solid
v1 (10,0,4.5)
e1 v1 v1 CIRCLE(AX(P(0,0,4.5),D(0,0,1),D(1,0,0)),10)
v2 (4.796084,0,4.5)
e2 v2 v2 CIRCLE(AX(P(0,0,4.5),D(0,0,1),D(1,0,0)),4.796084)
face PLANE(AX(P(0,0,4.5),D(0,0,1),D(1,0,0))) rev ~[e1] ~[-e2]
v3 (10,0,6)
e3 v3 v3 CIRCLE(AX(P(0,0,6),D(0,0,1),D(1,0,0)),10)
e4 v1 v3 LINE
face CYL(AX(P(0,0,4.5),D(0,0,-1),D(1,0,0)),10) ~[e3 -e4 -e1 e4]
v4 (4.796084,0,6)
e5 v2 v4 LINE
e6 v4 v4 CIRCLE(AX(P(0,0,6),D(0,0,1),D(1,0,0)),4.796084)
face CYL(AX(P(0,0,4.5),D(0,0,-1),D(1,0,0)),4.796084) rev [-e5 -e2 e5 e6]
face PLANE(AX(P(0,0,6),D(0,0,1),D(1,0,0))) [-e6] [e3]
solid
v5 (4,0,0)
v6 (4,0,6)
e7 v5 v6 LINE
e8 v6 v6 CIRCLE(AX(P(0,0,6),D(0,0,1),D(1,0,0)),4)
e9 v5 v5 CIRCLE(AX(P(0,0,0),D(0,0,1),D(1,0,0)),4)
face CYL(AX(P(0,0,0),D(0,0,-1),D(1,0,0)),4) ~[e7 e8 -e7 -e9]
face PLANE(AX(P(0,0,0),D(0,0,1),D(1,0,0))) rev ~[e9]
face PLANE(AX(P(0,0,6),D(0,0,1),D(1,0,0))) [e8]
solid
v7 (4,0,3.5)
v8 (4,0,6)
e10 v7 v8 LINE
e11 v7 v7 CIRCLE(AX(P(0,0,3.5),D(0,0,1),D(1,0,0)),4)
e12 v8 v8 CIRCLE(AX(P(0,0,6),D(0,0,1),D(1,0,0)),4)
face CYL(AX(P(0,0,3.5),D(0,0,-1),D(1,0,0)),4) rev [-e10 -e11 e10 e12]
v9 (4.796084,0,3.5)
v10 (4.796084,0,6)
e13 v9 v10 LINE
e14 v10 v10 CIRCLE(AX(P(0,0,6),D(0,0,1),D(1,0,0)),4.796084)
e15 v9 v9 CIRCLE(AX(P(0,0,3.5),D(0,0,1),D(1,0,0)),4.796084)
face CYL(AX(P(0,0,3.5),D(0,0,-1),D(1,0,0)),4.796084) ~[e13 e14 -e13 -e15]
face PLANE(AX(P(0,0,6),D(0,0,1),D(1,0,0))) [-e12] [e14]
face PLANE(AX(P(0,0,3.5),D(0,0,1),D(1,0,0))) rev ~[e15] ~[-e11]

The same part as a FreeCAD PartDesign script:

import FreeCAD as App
import Part
import Sketcher
from FreeCAD import Vector
Q = App.Units.Quantity

doc = App.newDocument("Part")
params = doc.addObject("Spreadsheet::Sheet", "Params")
for row, (alias, value) in enumerate([
    ("sketch1_diameter", "8 mm"),
    ("pad1_length", "6 mm"),
    ("sketch2_diameter", "20 mm"),
    ("pad2_length", "1.5 mm"),
    ("sketch3_diameter", "8 mm"),
    ("pad3_length", "2.5 mm"),
], start=1):
    params.set(f"A{row}", alias)
    params.set(f"B{row}", "=" + value)
    params.setAlias(f"B{row}", alias)

body = doc.addObject("PartDesign::Body", "Body")

# Sketch on XY plane
sketch1 = body.newObject("Sketcher::SketchObject", "Sketch")
sketch1.AttachmentSupport = (doc.getObject("XY_Plane"), [""])
sketch1.MapMode = "FlatFace"
sketch1.addGeometry(Part.Circle(Vector(0, 0, 0), Vector(0, 0, 1), 4), False)
sketch1.addConstraint([
    Sketcher.Constraint("Coincident", 0, 3, -1, 1),
    Sketcher.Constraint("Diameter", 0, Q("8 mm")),
])
sketch1.setExpression("Constraints[1]", "Params.sketch1_diameter")
pad1 = body.newObject("PartDesign::Pad", "Pad")
pad1.Profile = sketch1
pad1.setExpression("Length", "Params.pad1_length")
body2 = doc.addObject("PartDesign::Body", "Body001")

# Sketch on XY plane
sketch2 = body2.newObject("Sketcher::SketchObject", "Sketch001")
sketch2.AttachmentSupport = (doc.getObject("XY_Plane001"), [""])
sketch2.MapMode = "FlatFace"
sketch2.addGeometry([
    Part.Circle(Vector(0, 0, 0), Vector(0, 0, 1), 10),
    Part.Circle(Vector(0, 0, 0), Vector(0, 0, 1), 4.8),
], False)
sketch2.addConstraint([
    Sketcher.Constraint("Coincident", 0, 3, -1, 1),
    Sketcher.Constraint("Coincident", 1, 3, -1, 1),
    Sketcher.Constraint("Diameter", 0, Q("20 mm")),
    Sketcher.Constraint("Diameter", 1, Q("9.592168 mm")),
])
sketch2.setExpression("Constraints[2]", "Params.sketch2_diameter")
pad2 = body2.newObject("PartDesign::Pad", "Pad001")
pad2.Profile = sketch2
pad2.setExpression("Length", "Params.pad2_length")
body3 = doc.addObject("PartDesign::Body", "Body002")
doc.recompute()

body2.Placement = App.Placement(Vector(0, 0, 4.5), App.Rotation(Vector(0, 0, 1), 0))
boolean = body3.newObject("PartDesign::Boolean", "Boolean")
boolean.Type = "Fuse"
boolean.addObjects([body2])
body4 = doc.addObject("PartDesign::Body", "Body003")

# Sketch on XY plane
sketch3 = body4.newObject("Sketcher::SketchObject", "Sketch002")
sketch3.AttachmentSupport = (doc.getObject("XY_Plane003"), [""])
sketch3.MapMode = "FlatFace"
sketch3.addGeometry([
    Part.Circle(Vector(0, 0, 0), Vector(0, 0, 1), 4.8),
    Part.Circle(Vector(0, 0, 0), Vector(0, 0, 1), 4),
], False)
sketch3.addConstraint([
    Sketcher.Constraint("Coincident", 0, 3, -1, 1),
    Sketcher.Constraint("Coincident", 1, 3, -1, 1),
    Sketcher.Constraint("Diameter", 1, Q("8 mm")),
    Sketcher.Constraint("Diameter", 0, Q("9.592168 mm")),
])
sketch3.setExpression("Constraints[2]", "Params.sketch3_diameter")
pad3 = body4.newObject("PartDesign::Pad", "Pad002")
pad3.Profile = sketch3
pad3.setExpression("Length", "Params.pad3_length")
body5 = doc.addObject("PartDesign::Body", "Body004")
doc.recompute()

body4.Placement = App.Placement(Vector(0, 0, 3.5), App.Rotation(Vector(0, 0, 1), 0))
boolean2 = body5.newObject("PartDesign::Boolean", "Boolean001")
boolean2.Type = "Fuse"
boolean2.addObjects([body4])

doc.recompute()
